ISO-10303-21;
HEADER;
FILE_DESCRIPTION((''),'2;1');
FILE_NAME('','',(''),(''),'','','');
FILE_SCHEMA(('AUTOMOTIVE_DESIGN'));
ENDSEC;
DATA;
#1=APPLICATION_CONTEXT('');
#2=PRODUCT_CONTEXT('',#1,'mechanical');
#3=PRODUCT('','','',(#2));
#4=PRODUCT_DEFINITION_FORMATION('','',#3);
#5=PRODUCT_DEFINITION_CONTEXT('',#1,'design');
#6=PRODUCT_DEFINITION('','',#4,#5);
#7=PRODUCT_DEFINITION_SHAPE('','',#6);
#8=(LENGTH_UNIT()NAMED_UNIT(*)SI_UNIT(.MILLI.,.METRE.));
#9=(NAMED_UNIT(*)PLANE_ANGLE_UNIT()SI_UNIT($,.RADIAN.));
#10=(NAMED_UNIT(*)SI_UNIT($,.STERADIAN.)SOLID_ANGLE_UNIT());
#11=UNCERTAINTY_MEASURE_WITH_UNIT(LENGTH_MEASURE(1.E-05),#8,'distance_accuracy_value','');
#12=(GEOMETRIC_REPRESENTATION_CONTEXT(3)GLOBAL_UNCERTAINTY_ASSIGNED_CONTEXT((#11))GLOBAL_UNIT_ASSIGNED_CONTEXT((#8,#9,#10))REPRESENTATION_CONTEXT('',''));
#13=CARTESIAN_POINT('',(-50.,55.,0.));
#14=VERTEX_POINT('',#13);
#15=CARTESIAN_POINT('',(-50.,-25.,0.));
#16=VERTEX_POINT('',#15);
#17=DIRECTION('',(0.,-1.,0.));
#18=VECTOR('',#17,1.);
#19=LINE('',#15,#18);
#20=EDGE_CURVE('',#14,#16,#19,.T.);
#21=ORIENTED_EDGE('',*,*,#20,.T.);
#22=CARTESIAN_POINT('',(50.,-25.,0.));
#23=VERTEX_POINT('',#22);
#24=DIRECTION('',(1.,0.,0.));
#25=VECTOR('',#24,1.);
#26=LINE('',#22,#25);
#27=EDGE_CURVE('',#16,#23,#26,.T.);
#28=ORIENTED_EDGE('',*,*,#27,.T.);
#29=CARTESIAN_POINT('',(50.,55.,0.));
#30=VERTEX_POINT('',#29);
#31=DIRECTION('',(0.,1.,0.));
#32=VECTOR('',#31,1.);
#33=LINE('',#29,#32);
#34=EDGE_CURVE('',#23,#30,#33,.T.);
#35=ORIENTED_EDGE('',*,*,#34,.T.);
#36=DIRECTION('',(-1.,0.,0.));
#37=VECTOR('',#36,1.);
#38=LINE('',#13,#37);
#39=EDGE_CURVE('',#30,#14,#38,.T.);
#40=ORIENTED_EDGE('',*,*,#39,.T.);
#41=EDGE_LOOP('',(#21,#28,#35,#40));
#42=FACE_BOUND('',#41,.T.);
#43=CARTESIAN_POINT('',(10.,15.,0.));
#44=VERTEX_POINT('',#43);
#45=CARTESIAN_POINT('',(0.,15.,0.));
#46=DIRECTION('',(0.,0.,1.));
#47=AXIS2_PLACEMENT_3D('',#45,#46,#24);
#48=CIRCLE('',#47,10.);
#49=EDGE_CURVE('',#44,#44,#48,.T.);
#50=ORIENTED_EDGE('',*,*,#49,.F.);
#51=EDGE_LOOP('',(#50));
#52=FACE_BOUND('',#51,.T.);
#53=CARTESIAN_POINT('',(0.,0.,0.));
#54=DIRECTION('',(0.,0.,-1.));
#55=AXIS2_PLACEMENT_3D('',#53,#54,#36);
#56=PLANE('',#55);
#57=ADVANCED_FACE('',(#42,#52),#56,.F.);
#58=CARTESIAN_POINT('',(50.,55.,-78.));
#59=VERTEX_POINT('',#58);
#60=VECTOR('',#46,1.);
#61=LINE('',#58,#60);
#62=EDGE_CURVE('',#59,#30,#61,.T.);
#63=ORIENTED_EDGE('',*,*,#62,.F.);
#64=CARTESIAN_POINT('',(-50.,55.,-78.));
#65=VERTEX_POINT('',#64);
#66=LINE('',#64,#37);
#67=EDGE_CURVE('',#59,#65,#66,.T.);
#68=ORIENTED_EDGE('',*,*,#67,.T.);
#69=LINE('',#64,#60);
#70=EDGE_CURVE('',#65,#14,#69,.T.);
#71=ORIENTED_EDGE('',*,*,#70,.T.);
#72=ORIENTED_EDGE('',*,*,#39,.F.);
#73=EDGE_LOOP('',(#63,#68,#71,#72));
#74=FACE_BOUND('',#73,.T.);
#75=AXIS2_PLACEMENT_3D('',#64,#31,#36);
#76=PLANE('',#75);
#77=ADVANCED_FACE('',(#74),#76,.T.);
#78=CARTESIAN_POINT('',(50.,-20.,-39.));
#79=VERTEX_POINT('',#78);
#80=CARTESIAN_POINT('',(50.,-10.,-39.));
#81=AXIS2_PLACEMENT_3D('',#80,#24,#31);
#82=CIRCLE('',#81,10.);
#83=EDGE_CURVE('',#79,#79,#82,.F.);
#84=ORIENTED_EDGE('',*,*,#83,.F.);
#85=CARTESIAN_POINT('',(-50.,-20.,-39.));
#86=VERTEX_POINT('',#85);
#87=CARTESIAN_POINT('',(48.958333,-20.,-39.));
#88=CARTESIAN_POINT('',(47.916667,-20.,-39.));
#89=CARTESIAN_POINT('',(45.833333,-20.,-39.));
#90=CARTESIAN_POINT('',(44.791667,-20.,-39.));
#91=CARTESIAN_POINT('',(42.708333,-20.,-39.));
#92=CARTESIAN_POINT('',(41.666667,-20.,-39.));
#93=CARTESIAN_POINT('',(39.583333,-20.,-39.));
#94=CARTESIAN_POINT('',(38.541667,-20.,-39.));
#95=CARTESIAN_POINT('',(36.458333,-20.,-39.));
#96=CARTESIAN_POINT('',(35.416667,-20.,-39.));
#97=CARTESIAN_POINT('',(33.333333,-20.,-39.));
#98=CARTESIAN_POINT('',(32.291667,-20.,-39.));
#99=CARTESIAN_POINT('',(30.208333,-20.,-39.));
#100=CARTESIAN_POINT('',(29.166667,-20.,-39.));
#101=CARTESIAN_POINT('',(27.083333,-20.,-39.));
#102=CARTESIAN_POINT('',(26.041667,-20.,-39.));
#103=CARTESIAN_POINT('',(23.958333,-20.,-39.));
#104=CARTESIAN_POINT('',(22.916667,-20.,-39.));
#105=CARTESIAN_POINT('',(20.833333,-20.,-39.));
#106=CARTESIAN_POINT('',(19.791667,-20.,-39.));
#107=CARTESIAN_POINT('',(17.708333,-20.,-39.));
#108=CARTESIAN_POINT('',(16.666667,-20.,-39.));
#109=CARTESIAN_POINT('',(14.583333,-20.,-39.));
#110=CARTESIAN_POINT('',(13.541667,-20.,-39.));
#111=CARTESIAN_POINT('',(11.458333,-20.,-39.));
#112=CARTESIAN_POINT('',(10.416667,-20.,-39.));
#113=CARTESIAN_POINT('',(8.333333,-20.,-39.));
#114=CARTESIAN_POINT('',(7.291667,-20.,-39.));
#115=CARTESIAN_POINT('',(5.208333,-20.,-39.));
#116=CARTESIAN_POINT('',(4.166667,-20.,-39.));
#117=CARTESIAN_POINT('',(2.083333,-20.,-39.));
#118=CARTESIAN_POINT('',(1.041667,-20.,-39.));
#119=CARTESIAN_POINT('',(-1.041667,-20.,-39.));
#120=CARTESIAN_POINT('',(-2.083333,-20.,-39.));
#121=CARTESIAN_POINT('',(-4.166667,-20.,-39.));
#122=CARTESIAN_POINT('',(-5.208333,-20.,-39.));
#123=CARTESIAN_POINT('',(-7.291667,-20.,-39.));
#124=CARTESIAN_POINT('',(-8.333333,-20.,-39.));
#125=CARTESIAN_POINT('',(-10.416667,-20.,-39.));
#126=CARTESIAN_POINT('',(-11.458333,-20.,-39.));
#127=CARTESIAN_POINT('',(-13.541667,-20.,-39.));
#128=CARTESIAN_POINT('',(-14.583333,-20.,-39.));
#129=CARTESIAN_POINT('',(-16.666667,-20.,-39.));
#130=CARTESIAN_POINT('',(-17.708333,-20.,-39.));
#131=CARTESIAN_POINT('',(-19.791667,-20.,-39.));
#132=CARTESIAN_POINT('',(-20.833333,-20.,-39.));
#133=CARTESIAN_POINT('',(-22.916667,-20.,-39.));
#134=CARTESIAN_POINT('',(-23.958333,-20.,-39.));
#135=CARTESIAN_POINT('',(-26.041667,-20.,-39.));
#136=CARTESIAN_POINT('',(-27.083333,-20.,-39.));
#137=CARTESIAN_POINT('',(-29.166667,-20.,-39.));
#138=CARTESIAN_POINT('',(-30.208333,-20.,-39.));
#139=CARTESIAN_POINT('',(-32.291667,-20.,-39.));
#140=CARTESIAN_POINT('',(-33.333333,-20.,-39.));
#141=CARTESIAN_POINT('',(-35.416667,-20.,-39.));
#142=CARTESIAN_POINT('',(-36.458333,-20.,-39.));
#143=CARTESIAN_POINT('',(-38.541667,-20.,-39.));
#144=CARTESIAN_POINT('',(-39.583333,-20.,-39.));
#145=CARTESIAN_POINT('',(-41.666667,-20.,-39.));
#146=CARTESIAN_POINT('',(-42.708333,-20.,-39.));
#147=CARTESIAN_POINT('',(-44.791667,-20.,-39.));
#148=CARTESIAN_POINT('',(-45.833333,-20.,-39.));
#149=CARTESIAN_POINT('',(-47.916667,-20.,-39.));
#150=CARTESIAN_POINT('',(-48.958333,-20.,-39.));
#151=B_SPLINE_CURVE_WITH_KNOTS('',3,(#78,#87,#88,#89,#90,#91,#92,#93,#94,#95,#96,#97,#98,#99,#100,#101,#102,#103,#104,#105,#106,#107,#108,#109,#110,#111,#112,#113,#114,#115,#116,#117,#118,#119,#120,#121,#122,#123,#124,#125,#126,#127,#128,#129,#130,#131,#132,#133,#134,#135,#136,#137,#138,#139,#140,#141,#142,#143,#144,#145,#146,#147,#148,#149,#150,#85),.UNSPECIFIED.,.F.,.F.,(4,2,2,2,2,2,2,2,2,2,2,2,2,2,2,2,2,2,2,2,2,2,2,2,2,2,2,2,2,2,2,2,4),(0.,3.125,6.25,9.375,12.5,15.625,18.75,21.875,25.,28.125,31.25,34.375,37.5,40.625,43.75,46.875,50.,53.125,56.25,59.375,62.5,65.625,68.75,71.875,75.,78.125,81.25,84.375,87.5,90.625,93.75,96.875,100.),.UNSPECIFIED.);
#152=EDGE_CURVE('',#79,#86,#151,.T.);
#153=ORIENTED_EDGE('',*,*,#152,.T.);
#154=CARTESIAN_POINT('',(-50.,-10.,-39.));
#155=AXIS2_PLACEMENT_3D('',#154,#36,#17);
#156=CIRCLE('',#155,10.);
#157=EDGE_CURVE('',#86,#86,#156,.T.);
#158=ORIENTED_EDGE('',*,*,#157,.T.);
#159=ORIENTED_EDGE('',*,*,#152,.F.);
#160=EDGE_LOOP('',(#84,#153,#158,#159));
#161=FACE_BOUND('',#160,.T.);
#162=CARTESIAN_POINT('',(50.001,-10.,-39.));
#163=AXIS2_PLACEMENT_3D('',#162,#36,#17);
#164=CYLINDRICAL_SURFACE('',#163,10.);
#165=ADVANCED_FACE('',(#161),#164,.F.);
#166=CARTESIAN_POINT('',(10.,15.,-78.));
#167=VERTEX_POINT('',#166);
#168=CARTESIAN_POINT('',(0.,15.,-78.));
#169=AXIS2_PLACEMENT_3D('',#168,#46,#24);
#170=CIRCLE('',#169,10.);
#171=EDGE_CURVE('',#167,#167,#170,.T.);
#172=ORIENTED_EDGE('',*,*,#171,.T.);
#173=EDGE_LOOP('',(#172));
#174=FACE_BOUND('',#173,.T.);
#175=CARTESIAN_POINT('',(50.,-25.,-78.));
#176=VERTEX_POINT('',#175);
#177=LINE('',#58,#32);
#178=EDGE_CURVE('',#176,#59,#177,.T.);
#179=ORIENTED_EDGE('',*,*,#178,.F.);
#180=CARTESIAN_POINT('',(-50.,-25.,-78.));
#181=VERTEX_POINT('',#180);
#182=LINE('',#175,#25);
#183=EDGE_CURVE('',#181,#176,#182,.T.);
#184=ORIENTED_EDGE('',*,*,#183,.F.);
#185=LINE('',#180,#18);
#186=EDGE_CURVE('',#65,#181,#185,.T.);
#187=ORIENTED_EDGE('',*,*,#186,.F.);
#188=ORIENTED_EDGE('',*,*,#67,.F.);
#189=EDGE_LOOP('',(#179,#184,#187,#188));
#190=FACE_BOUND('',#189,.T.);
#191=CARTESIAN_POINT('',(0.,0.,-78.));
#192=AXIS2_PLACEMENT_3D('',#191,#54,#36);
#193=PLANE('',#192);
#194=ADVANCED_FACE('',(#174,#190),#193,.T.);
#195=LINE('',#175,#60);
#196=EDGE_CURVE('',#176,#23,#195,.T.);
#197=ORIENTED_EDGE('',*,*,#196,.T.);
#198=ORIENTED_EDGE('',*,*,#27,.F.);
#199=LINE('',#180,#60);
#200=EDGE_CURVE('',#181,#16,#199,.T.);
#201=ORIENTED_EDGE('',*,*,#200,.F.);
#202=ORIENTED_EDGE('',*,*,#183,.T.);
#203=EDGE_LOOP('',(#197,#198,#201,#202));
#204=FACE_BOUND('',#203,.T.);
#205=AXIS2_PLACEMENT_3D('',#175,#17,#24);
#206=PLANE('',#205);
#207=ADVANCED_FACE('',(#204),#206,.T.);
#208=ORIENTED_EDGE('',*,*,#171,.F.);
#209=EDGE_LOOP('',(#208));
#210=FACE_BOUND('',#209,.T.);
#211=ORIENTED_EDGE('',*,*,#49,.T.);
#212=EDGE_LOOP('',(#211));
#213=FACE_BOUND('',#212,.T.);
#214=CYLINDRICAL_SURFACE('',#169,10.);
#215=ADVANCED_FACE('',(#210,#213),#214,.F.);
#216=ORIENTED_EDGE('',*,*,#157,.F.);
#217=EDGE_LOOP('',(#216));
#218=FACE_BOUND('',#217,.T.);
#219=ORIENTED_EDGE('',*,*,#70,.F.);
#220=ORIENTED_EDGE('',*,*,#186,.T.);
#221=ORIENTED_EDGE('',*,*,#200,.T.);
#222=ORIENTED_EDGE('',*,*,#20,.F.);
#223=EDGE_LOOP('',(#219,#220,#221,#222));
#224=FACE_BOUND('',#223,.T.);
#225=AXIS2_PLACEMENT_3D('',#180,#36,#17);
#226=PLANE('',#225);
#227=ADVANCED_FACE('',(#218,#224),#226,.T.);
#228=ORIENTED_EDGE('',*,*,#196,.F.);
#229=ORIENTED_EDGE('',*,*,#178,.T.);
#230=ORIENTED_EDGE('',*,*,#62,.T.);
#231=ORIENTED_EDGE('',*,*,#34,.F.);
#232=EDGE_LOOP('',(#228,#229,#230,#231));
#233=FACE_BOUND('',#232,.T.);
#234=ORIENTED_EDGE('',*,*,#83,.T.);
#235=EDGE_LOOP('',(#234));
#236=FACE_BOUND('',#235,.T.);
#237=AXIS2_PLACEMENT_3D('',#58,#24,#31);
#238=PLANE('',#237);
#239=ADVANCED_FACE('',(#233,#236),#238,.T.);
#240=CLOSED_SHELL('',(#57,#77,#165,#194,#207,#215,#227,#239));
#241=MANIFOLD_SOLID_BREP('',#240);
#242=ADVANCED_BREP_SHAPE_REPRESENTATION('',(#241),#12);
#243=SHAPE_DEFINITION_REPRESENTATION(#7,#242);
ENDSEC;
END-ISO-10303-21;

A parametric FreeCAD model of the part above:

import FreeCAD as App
import Part
import Sketcher
Q = App.Units.Quantity


def add_polygon(sketch, points):
    """Adds a closed chain of lines whose ends are joined by coincident constraints."""
    first, n = sketch.GeometryCount, len(points)
    for a, b in zip(points, points[1:] + points[:1]):
        sketch.addGeometry(Part.LineSegment(App.Vector(*a, 0), App.Vector(*b, 0)), False)
    for i in range(n):
        sketch.addConstraint(Sketcher.Constraint("Coincident", first + i, 2, first + (i + 1) % n, 1))

doc = App.newDocument("Part")
body = doc.addObject("PartDesign::Body", "Body")

# Sketch on XY plane
sketch1 = doc.addObject("Sketcher::SketchObject", "Sketch")
body.addObject(sketch1)
sketch1.AttachmentSupport = (doc.XY_Plane, [""])
sketch1.MapMode = "FlatFace"
add_polygon(sketch1, [(-50, 55), (-50, -25), (50, -25), (50, 55)])  # lines 0-3
sketch1.addGeometry(Part.Circle(App.Vector(0, 15, 0), App.Vector(0, 0, 1), 10), False)  # 4
sketch1.addConstraint(Sketcher.Constraint("Vertical", 0))
sketch1.addConstraint(Sketcher.Constraint("Horizontal", 1))
sketch1.addConstraint(Sketcher.Constraint("Vertical", 2))
sketch1.addConstraint(Sketcher.Constraint("Horizontal", 3))
sketch1.addConstraint(Sketcher.Constraint("PointOnObject", 4, 3, -2))
sketch1.addConstraint(Sketcher.Constraint("Diameter", 4, Q("20 mm")))
sketch1.addConstraint(Sketcher.Constraint("DistanceX", 1, 1, 1, 2, Q("100 mm")))
sketch1.addConstraint(Sketcher.Constraint("DistanceY", 0, 2, 0, 1, Q("80 mm")))
sketch1.addConstraint(Sketcher.Constraint("DistanceY", -1, 1, 4, 3, Q("15 mm")))
sketch1.addConstraint(Sketcher.Constraint("DistanceX", 0, 2, -1, 1, Q("50 mm")))
sketch1.addConstraint(Sketcher.Constraint("DistanceY", 0, 2, -1, 1, Q("25 mm")))
pad1 = doc.addObject("PartDesign::Pad", "Pad")
body.addObject(pad1)
pad1.Profile = sketch1
pad1.Length = 78
pad1.Reversed = True

# Sketch on YZ plane
sketch2 = doc.addObject("Sketcher::SketchObject", "Sketch001")
body.addObject(sketch2)
sketch2.AttachmentSupport = (doc.YZ_Plane, [""])
sketch2.MapMode = "FlatFace"
sketch2.AttachmentOffset = App.Placement(App.Vector(0, 0, -50), App.Rotation())
sketch2.addGeometry(Part.Circle(App.Vector(-10, -39, 0), App.Vector(0, 0, 1), 10), False)
sketch2.addConstraint(Sketcher.Constraint("Diameter", 0, Q("20 mm")))
sketch2.addConstraint(Sketcher.Constraint("DistanceX", 0, 3, -1, 1, Q("10 mm")))
sketch2.addConstraint(Sketcher.Constraint("DistanceY", 0, 3, -1, 1, Q("39 mm")))
pocket1 = doc.addObject("PartDesign::Pocket", "Pocket")
body.addObject(pocket1)
pocket1.Profile = sketch2
pocket1.Type = "UpToFirst"
pocket1.Reversed = True

doc.recompute()
